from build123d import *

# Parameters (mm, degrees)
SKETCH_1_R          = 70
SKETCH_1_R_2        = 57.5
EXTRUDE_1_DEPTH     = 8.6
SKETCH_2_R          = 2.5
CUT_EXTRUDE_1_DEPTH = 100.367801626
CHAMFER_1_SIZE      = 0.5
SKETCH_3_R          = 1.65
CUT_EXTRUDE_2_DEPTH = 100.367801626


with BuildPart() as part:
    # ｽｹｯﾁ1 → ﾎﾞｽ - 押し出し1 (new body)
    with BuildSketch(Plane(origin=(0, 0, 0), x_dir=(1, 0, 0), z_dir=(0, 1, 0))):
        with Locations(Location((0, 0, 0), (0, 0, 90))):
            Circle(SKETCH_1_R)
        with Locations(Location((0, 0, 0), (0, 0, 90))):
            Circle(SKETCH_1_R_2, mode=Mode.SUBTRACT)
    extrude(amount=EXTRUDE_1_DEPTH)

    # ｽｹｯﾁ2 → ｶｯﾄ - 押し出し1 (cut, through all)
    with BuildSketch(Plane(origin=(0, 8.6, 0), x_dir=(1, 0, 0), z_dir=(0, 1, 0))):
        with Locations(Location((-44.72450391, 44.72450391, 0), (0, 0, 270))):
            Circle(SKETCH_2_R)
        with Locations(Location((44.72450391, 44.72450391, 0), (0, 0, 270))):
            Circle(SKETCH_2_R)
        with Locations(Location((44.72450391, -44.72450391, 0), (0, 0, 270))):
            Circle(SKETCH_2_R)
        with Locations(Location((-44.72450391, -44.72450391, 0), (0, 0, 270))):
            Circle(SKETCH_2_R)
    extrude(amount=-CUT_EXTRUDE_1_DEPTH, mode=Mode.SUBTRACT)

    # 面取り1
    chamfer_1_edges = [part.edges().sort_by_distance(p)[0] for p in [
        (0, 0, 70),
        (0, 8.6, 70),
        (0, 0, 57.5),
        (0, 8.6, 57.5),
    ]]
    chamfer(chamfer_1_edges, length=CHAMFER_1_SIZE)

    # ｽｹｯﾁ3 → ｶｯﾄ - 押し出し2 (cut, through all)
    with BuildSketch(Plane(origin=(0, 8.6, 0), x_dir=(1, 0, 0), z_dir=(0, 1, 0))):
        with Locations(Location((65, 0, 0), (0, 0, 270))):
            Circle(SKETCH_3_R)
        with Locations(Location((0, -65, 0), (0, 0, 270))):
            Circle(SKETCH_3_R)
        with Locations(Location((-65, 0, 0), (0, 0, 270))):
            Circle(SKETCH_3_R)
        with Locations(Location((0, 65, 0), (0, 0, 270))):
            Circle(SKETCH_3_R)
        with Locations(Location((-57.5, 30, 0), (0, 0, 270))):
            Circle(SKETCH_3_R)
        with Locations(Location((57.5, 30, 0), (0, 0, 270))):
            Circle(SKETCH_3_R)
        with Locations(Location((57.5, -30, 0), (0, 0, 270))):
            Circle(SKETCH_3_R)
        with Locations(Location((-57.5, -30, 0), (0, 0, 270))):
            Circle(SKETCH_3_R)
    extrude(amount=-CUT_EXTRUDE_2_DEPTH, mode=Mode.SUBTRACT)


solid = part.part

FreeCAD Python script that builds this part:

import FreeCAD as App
import Part
import Sketcher
from FreeCAD import Vector


def edges_at(feature, points):
    """Names of the edges that pass closest to the given points."""
    edges = feature.Shape.Edges
    near = lambda p: min(range(len(edges)), key=lambda i: edges[i].distToShape(Part.Vertex(*p))[0])
    return sorted({f"Edge{near(p) + 1}" for p in points})

doc = App.newDocument("Part")
body = doc.addObject("PartDesign::Body", "Body")

sketch1 = doc.addObject("Sketcher::SketchObject", "Sketch")
body.addObject(sketch1)
sketch1.AttachmentSupport = (doc.XZ_Plane, [""])
sketch1.MapMode = "FlatFace"
sketch1.addGeometry([
    Part.Circle(Vector(0, 0, 0), Vector(0, 0, 1), 70),
    Part.Circle(Vector(0, 0, 0), Vector(0, 0, 1), 57.5),
], False)
sketch1.addConstraint([
    Sketcher.Constraint("Coincident", 0, 3, -1, 1),
    Sketcher.Constraint("Coincident", 1, 3, -1, 1),
    Sketcher.Constraint("Diameter", 0, 140.0),
    Sketcher.Constraint("Diameter", 1, 115.0),
])
pad1 = doc.addObject("PartDesign::Pad", "Pad")
body.addObject(pad1)
pad1.Profile = sketch1
pad1.Length = 8.6
pad1.Reversed = True

sketch2 = doc.addObject("Sketcher::SketchObject", "Sketch001")
body.addObject(sketch2)
sketch2.AttachmentSupport = (doc.XZ_Plane, [""])
sketch2.MapMode = "FlatFace"
sketch2.AttachmentOffset = App.Placement(Vector(0, 0, -8.6), App.Rotation())
sketch2.addGeometry([
    Part.Circle(Vector(-44.724504, -44.724504, 0), Vector(0, 0, 1), 2.5),
    Part.Circle(Vector(44.724504, -44.724504, 0), Vector(0, 0, 1), 2.5),
    Part.Circle(Vector(44.724504, 44.724504, 0), Vector(0, 0, 1), 2.5),
    Part.Circle(Vector(-44.724504, 44.724504, 0), Vector(0, 0, 1), 2.5),
], False)
sketch2.addConstraint([
    Sketcher.Constraint("Equal", 0, 1),
    Sketcher.Constraint("Equal", 1, 2),
    Sketcher.Constraint("Equal", 2, 3),
    Sketcher.Constraint("Symmetric", 0, 3, 2, 3, -1, 1),
    Sketcher.Constraint("Symmetric", 1, 3, 3, 3, -1, 1),
    Sketcher.Constraint("Symmetric", 0, 3, 1, 3, -2),
    Sketcher.Constraint("Diameter", 0, 5.0),
    Sketcher.Constraint("DistanceX", 0, 3, -1, 1, 44.724504),
    Sketcher.Constraint("DistanceY", 0, 3, -1, 1, 44.724504),
])
pocket1 = doc.addObject("PartDesign::Pocket", "Pocket")
body.addObject(pocket1)
pocket1.Profile = sketch2
pocket1.Type = "ThroughAll"
pocket1.Reversed = True
doc.recompute()

chamfer = doc.addObject("PartDesign::Chamfer", "Chamfer")
body.addObject(chamfer)
chamfer.Base = (pocket1, edges_at(pocket1, [
    (0, 0, 70),
    (0, 8.6, 70),
    (0, 0, 57.5),
    (0, 8.6, 57.5),
]))
chamfer.Size = 0.5

sketch3 = doc.addObject("Sketcher::SketchObject", "Sketch002")
body.addObject(sketch3)
sketch3.AttachmentSupport = (doc.XZ_Plane, [""])
sketch3.MapMode = "FlatFace"
sketch3.AttachmentOffset = App.Placement(Vector(0, 0, -8.6), App.Rotation())
sketch3.addGeometry([
    Part.Circle(Vector(65, 0, 0), Vector(0, 0, 1), 1.65),
    Part.Circle(Vector(0, 65, 0), Vector(0, 0, 1), 1.65),
    Part.Circle(Vector(-65, 0, 0), Vector(0, 0, 1), 1.65),
    Part.Circle(Vector(0, -65, 0), Vector(0, 0, 1), 1.65),
    Part.Circle(Vector(-57.5, -30, 0), Vector(0, 0, 1), 1.65),
    Part.Circle(Vector(57.5, -30, 0), Vector(0, 0, 1), 1.65),
    Part.Circle(Vector(57.5, 30, 0), Vector(0, 0, 1), 1.65),
    Part.Circle(Vector(-57.5, 30, 0), Vector(0, 0, 1), 1.65),
], False)
sketch3.addConstraint([
    Sketcher.Constraint("Equal", 0, 1),
    Sketcher.Constraint("Equal", 1, 2),
    Sketcher.Constraint("Equal", 2, 3),
    Sketcher.Constraint("Equal", 3, 4),
    Sketcher.Constraint("Equal", 4, 5),
    Sketcher.Constraint("Equal", 5, 6),
    Sketcher.Constraint("Equal", 6, 7),
    Sketcher.Constraint("Symmetric", 0, 3, 2, 3, -1, 1),
    Sketcher.Constraint("Symmetric", 1, 3, 3, 3, -1, 1),
    Sketcher.Constraint("Symmetric", 4, 3, 6, 3, -1, 1),
    Sketcher.Constraint("Symmetric", 5, 3, 7, 3, -1, 1),
    Sketcher.Constraint("Symmetric", 4, 3, 5, 3, -2),
    Sketcher.Constraint("PointOnObject", 0, 3, -1),
    Sketcher.Constraint("PointOnObject", 1, 3, -2),
    Sketcher.Constraint("Diameter", 0, 3.3),
    Sketcher.Constraint("DistanceX", -1, 1, 0, 3, 65.0),
    Sketcher.Constraint("DistanceY", -1, 1, 1, 3, 65.0),
    Sketcher.Constraint("DistanceY", 4, 3, -1, 1, 30.0),
    Sketcher.Constraint("DistanceX", 4, 3, 5, 3, 115.0),
])
pocket2 = doc.addObject("PartDesign::Pocket", "Pocket001")
body.addObject(pocket2)
pocket2.Profile = sketch3
pocket2.Type = "ThroughAll"
pocket2.Reversed = True

doc.recompute()
